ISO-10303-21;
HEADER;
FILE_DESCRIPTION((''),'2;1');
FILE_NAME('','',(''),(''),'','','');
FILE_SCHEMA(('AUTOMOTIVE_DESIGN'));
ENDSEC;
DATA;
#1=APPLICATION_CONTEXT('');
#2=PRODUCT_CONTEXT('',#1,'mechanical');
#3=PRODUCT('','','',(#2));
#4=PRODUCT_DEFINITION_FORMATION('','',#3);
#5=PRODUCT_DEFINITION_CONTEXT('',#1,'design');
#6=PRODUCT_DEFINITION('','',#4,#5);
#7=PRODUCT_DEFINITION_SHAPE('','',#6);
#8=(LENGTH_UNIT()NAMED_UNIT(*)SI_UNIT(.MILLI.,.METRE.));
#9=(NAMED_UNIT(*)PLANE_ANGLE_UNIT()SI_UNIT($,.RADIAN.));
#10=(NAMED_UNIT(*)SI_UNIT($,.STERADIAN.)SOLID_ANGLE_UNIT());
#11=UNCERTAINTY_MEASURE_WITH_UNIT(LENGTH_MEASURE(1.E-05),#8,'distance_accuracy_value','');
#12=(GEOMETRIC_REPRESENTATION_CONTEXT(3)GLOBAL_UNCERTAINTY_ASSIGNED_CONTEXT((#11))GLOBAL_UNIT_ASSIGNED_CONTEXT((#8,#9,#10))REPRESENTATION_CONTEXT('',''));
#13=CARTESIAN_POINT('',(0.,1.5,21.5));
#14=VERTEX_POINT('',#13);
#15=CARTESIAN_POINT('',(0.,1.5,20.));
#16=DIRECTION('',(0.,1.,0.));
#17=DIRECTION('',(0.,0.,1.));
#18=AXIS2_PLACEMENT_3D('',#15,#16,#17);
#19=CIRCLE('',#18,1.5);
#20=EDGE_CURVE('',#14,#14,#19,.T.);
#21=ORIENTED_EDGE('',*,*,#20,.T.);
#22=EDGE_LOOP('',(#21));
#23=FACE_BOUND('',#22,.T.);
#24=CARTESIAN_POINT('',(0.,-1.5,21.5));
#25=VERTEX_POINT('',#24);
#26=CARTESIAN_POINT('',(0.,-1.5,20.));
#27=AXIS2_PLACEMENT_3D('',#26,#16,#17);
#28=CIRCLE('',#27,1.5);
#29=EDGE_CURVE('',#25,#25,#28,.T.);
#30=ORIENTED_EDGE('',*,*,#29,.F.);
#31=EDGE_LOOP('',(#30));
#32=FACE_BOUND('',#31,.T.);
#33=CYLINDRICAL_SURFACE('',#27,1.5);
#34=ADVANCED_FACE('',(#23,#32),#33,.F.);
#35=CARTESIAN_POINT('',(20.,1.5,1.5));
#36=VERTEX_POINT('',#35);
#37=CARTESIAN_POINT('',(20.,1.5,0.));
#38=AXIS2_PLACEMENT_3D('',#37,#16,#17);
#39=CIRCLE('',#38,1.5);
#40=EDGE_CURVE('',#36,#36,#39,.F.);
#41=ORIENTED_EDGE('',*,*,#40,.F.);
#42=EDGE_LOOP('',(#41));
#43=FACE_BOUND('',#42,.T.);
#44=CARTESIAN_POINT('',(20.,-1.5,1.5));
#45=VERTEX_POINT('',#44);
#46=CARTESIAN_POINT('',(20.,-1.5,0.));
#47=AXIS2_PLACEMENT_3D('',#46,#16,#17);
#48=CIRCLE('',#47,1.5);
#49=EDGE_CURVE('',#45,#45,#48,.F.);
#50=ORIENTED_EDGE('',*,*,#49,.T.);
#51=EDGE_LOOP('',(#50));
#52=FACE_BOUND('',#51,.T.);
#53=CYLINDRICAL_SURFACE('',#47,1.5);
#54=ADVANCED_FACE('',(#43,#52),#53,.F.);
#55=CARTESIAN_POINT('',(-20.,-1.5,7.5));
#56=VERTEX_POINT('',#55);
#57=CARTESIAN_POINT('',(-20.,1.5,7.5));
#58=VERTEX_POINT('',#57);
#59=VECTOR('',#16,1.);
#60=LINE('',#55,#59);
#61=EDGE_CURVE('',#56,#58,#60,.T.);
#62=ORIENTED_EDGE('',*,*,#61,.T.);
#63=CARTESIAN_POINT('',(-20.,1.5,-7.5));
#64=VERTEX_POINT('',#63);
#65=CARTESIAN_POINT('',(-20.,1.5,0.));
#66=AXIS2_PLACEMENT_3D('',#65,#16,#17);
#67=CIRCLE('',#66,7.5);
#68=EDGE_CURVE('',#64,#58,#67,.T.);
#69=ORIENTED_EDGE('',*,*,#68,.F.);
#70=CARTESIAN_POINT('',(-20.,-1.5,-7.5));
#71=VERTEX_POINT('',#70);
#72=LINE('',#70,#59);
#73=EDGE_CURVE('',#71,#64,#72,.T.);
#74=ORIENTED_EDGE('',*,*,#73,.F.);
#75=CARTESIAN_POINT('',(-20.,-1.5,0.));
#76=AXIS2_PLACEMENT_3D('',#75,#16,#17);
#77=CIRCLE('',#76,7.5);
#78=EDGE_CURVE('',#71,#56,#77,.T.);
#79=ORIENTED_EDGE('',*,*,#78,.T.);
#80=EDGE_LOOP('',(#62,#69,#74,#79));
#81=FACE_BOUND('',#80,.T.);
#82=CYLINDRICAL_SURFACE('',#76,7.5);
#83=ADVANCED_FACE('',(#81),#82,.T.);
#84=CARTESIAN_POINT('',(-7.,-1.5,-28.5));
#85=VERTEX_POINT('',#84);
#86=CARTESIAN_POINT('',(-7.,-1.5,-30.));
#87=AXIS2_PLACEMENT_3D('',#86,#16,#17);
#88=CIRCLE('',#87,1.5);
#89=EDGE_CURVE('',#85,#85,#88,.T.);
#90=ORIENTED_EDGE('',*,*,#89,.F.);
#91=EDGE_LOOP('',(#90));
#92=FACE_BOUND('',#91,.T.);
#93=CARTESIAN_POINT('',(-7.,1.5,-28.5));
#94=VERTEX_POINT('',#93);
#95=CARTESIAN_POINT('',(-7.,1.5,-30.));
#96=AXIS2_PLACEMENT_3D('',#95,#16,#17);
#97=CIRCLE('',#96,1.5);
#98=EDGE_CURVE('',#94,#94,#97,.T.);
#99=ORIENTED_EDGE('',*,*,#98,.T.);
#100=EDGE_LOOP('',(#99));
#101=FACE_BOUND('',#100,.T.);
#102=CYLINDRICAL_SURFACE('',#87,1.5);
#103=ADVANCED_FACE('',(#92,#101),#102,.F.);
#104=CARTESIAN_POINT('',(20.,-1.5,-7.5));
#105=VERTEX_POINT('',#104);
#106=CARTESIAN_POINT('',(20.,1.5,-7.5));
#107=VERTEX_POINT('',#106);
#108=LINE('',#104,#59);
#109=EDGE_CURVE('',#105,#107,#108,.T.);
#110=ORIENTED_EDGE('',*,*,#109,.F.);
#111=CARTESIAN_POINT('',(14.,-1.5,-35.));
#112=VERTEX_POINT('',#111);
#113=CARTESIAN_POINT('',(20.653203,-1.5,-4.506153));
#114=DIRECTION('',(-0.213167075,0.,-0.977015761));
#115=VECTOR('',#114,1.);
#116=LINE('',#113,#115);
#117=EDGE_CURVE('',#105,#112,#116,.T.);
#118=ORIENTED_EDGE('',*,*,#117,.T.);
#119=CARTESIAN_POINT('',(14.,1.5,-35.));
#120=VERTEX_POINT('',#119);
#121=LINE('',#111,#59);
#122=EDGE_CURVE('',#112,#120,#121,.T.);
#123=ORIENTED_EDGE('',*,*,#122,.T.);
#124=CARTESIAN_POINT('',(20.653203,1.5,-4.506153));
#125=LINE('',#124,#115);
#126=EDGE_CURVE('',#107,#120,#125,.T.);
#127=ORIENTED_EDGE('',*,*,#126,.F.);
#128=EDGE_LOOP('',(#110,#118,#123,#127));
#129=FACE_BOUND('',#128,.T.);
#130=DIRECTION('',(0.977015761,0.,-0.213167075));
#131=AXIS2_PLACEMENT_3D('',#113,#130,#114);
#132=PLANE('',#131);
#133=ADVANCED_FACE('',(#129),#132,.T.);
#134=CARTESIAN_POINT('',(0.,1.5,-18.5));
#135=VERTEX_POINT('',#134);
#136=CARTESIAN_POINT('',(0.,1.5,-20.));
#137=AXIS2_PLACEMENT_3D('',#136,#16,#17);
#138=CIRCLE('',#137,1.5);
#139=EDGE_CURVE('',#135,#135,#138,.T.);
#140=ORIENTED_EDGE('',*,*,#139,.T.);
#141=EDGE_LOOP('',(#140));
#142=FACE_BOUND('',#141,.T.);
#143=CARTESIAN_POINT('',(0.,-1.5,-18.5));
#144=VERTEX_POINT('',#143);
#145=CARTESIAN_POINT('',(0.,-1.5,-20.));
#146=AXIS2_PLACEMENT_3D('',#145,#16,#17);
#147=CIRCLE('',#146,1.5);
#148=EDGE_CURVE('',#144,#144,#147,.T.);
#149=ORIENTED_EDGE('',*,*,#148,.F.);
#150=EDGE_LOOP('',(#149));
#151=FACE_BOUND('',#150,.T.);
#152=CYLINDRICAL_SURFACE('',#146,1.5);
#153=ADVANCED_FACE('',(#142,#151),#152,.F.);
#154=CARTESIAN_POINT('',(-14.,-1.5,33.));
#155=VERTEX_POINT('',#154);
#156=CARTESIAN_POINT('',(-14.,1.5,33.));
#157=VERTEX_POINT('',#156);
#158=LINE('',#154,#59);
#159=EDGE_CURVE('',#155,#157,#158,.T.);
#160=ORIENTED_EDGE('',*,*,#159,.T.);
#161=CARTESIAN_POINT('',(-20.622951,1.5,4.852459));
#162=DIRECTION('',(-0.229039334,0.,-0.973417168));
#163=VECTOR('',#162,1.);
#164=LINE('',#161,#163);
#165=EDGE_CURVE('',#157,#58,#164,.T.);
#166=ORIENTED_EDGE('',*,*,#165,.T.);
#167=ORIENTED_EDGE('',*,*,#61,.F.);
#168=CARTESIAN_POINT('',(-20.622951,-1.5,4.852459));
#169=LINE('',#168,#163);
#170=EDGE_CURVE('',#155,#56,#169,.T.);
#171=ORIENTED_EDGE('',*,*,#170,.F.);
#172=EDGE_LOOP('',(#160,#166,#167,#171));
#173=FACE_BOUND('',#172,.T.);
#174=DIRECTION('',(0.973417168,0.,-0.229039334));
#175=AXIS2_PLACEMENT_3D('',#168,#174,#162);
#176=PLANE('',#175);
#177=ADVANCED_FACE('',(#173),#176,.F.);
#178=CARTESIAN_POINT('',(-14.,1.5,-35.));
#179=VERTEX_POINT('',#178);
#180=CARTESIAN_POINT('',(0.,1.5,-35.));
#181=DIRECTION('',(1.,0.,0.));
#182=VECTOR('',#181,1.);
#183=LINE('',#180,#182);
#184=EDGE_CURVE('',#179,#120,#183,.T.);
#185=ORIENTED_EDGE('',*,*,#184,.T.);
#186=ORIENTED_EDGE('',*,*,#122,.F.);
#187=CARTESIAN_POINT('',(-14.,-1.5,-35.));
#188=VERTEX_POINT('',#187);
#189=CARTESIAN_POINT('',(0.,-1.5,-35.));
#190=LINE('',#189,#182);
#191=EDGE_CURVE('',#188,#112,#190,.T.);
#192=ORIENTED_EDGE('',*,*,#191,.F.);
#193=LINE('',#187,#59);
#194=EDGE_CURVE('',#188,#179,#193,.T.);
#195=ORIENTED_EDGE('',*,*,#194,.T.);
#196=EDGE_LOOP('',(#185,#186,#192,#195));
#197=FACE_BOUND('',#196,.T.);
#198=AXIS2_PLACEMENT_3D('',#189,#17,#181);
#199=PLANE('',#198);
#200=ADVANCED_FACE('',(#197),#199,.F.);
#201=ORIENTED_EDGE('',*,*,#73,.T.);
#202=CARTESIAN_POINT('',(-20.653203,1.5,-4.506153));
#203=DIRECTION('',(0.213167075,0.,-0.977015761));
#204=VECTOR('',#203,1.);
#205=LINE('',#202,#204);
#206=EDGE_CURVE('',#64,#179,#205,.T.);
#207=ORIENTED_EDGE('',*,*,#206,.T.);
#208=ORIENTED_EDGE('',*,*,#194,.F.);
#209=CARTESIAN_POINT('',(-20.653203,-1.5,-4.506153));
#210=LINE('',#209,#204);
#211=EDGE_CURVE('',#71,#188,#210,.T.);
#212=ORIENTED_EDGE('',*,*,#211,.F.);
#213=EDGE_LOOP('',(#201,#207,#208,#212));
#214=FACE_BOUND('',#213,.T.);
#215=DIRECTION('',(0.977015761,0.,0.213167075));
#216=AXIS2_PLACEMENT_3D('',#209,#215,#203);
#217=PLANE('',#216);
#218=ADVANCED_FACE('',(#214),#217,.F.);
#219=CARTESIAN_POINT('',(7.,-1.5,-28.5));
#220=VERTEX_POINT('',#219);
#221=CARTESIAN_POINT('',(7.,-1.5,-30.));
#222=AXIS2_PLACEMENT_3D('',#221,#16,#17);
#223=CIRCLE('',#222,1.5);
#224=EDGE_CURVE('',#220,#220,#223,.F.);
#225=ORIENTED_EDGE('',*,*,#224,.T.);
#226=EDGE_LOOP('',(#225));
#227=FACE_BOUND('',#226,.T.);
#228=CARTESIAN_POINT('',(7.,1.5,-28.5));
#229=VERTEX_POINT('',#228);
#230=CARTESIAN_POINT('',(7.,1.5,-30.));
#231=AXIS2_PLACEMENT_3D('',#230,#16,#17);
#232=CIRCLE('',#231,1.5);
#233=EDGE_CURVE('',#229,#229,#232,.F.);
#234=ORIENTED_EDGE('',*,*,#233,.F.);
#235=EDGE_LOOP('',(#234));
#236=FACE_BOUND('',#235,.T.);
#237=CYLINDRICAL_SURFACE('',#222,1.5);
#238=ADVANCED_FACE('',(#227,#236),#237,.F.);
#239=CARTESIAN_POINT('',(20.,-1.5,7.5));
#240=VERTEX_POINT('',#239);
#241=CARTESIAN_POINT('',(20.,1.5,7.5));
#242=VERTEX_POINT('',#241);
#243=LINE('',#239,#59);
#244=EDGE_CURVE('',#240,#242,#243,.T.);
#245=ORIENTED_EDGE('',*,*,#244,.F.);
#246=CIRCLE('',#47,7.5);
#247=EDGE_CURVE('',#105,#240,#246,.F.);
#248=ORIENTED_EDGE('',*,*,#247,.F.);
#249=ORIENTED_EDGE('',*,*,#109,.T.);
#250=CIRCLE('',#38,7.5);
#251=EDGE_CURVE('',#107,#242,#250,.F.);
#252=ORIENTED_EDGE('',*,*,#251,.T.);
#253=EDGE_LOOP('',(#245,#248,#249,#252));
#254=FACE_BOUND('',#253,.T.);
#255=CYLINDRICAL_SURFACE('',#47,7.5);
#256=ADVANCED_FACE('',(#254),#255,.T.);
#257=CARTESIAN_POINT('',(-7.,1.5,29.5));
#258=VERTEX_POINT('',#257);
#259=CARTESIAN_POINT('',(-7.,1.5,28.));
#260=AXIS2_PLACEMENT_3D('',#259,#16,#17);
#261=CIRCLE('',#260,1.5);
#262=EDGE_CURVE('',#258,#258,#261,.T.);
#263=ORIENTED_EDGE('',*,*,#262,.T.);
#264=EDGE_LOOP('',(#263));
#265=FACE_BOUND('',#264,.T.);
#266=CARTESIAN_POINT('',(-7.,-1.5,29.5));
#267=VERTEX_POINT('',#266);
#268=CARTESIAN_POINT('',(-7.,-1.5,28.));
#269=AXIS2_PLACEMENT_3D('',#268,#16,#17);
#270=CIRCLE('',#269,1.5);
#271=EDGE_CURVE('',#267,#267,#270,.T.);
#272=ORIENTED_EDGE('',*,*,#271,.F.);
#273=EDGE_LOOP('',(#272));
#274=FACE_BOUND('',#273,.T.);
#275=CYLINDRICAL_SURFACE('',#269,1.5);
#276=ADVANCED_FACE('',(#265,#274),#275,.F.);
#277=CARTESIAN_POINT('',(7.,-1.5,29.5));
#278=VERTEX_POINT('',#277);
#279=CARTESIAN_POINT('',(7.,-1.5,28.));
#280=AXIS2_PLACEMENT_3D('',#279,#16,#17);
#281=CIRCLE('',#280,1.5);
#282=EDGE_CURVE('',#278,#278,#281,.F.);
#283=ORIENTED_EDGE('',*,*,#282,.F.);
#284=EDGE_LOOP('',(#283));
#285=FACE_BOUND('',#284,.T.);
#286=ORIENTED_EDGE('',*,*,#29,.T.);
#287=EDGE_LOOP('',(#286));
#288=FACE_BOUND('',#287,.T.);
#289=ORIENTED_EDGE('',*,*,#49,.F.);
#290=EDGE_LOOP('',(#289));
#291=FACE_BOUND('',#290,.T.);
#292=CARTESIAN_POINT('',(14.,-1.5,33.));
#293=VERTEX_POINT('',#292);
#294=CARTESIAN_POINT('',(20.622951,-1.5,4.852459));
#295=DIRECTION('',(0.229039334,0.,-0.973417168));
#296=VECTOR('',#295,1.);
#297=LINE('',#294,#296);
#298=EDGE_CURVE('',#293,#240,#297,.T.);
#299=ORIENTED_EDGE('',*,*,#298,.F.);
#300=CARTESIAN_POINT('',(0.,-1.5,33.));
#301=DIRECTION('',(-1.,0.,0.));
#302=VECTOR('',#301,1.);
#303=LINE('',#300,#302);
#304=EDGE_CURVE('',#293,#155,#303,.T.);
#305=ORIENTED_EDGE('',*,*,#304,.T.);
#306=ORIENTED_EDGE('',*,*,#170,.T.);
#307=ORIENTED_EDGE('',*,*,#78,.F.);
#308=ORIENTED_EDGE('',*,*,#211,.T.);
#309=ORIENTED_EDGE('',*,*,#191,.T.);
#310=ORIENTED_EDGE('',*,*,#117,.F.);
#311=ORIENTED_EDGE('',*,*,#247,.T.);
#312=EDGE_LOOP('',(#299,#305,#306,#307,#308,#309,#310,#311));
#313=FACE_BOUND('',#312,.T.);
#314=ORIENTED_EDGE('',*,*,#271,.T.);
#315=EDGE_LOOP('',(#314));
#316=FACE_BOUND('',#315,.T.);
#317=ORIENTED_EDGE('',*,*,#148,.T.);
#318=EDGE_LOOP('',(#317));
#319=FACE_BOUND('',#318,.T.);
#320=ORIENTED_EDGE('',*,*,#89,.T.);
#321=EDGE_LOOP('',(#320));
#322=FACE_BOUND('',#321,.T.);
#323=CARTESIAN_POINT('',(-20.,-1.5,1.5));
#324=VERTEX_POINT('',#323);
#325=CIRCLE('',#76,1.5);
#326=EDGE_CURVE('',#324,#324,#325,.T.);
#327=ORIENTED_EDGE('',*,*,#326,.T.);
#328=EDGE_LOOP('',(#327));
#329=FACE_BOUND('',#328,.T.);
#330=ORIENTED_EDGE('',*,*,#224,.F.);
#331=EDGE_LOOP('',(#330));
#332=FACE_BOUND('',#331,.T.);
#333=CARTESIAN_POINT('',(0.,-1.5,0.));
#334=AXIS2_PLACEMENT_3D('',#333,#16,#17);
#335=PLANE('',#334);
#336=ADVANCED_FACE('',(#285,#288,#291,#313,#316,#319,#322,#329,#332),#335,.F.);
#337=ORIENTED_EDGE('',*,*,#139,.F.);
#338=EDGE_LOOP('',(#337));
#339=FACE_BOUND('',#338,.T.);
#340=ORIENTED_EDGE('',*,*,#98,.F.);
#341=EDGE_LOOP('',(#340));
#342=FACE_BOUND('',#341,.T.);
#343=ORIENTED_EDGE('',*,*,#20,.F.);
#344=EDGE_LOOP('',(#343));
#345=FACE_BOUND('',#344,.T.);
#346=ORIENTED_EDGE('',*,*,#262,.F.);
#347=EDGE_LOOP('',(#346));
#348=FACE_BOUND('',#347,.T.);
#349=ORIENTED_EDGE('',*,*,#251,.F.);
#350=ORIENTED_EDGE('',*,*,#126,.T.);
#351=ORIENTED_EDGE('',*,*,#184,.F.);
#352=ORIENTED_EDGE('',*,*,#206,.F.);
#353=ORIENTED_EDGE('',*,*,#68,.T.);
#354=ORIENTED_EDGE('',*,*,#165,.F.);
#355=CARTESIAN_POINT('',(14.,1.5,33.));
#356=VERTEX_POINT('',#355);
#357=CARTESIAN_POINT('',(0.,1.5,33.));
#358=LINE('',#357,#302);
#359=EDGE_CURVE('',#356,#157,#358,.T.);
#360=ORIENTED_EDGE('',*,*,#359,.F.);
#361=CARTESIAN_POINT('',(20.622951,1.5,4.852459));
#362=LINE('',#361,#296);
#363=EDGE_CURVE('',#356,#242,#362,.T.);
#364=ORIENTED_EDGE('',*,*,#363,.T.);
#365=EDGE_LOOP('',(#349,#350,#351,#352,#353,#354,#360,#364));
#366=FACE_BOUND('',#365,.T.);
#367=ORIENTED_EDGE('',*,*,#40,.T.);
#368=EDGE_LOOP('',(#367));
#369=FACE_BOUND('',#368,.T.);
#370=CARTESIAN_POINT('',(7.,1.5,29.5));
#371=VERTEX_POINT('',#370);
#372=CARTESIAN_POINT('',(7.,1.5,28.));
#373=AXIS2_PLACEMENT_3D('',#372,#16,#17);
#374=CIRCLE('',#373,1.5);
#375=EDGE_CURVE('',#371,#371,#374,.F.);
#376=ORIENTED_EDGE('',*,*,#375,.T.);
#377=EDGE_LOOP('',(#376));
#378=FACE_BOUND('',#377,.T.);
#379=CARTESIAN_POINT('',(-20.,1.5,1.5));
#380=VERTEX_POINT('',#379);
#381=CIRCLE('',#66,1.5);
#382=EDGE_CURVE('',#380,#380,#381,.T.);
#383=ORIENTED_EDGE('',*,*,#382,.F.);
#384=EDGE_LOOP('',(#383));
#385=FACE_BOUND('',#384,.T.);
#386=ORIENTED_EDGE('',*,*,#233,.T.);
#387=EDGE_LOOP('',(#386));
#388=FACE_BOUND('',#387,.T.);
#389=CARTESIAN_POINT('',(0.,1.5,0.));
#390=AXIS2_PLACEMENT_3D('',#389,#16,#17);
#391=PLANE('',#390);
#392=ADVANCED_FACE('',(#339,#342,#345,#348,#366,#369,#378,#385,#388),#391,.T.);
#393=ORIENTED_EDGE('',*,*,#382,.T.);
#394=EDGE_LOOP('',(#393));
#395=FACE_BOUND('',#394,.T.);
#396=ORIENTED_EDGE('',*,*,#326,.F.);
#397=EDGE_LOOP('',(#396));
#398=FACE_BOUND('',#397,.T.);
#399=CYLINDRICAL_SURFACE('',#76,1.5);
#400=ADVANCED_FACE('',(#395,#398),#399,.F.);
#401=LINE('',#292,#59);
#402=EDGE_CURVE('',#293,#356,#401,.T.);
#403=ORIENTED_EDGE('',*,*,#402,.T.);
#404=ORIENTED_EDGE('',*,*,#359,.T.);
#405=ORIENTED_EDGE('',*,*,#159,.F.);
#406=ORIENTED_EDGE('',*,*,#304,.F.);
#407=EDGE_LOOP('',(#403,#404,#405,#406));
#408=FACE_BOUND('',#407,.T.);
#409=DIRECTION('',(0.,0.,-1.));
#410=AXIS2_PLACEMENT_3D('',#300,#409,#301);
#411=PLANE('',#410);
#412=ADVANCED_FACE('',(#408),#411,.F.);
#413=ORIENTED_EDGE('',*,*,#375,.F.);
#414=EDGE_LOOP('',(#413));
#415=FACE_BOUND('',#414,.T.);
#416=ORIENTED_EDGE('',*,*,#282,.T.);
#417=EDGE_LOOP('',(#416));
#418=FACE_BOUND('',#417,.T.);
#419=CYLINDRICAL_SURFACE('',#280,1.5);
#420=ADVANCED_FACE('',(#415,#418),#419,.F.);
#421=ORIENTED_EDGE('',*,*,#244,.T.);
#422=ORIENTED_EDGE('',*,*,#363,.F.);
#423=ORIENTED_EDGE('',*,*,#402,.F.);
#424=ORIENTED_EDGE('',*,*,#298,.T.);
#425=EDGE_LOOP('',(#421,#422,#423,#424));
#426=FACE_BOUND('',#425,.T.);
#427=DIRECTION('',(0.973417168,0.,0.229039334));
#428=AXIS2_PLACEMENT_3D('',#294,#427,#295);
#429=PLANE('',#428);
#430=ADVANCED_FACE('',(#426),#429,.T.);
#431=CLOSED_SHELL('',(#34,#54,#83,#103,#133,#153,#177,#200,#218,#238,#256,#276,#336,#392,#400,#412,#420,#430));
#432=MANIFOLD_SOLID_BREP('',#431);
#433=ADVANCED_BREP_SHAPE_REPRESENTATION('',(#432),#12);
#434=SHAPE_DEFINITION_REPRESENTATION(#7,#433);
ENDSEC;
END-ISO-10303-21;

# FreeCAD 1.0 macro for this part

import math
import FreeCAD as App
import Part
import Sketcher

doc = App.newDocument("Part")
body = doc.addObject("PartDesign::Body", "Body")

# Sketch on XZ plane
sketch1 = doc.addObject("Sketcher::SketchObject", "Sketch")
body.addObject(sketch1)
sketch1.AttachmentSupport = (doc.XZ_Plane, [""])
sketch1.MapMode = "FlatFace"
sketch1.addGeometry(Part.LineSegment(App.Vector(-14, -35, 0), App.Vector(-20, -7.5, 0)), False)
sketch1.addGeometry(Part.ArcOfCircle(Part.Circle(App.Vector(-20, 0, 0), App.Vector(0, 0, 1), 7.5), math.radians(90), math.radians(270)), False)
sketch1.addGeometry(Part.LineSegment(App.Vector(-20, 7.5, 0), App.Vector(-14, 33, 0)), False)
sketch1.addGeometry(Part.LineSegment(App.Vector(-14, 33, 0), App.Vector(14, 33, 0)), False)
sketch1.addGeometry(Part.LineSegment(App.Vector(14, 33, 0), App.Vector(20, 7.5, 0)), False)
sketch1.addGeometry(Part.ArcOfCircle(Part.Circle(App.Vector(20, 0, 0), App.Vector(0, 0, 1), 7.5), math.radians(-90), math.radians(90)), False)
sketch1.addGeometry(Part.LineSegment(App.Vector(20, -7.5, 0), App.Vector(14, -35, 0)), False)
sketch1.addGeometry(Part.LineSegment(App.Vector(14, -35, 0), App.Vector(-14, -35, 0)), False)
sketch1.addGeometry(Part.Circle(App.Vector(-7, 28, 0), App.Vector(0, 0, 1), 1.5), False)
sketch1.addGeometry(Part.Circle(App.Vector(-20, 0, 0), App.Vector(0, 0, 1), 1.5), False)
sketch1.addGeometry(Part.Circle(App.Vector(7, 28, 0), App.Vector(0, 0, 1), 1.5), False)
sketch1.addGeometry(Part.Circle(App.Vector(0, 20, 0), App.Vector(0, 0, 1), 1.5), False)
sketch1.addGeometry(Part.Circle(App.Vector(20, 0, 0), App.Vector(0, 0, 1), 1.5), False)
sketch1.addGeometry(Part.Circle(App.Vector(-7, -30, 0), App.Vector(0, 0, 1), 1.5), False)
sketch1.addGeometry(Part.Circle(App.Vector(0, -20, 0), App.Vector(0, 0, 1), 1.5), False)
sketch1.addGeometry(Part.Circle(App.Vector(7, -30, 0), App.Vector(0, 0, 1), 1.5), False)
sketch1.addConstraint(Sketcher.Constraint("Coincident", 0, 2, 1, 2))
sketch1.addConstraint(Sketcher.Constraint("Coincident", 1, 1, 2, 1))
sketch1.addConstraint(Sketcher.Constraint("Coincident", 2, 2, 3, 1))
sketch1.addConstraint(Sketcher.Constraint("Coincident", 3, 2, 4, 1))
sketch1.addConstraint(Sketcher.Constraint("Coincident", 4, 2, 5, 2))
sketch1.addConstraint(Sketcher.Constraint("Coincident", 5, 1, 6, 1))
sketch1.addConstraint(Sketcher.Constraint("Coincident", 6, 2, 7, 1))
sketch1.addConstraint(Sketcher.Constraint("Coincident", 7, 2, 0, 1))
sketch1.addConstraint(Sketcher.Constraint("Horizontal", 3))
sketch1.addConstraint(Sketcher.Constraint("Horizontal", 7))
sketch1.addConstraint(Sketcher.Constraint("Coincident", 9, 3, 1, 3))
sketch1.addConstraint(Sketcher.Constraint("Coincident", 12, 3, 5, 3))
sketch1.addConstraint(Sketcher.Constraint("Equal", 1, 5))
sketch1.addConstraint(Sketcher.Constraint("Equal", 8, 9))
sketch1.addConstraint(Sketcher.Constraint("Equal", 9, 10))
sketch1.addConstraint(Sketcher.Constraint("Equal", 10, 11))
sketch1.addConstraint(Sketcher.Constraint("Equal", 11, 12))
sketch1.addConstraint(Sketcher.Constraint("Equal", 12, 13))
sketch1.addConstraint(Sketcher.Constraint("Equal", 13, 14))
sketch1.addConstraint(Sketcher.Constraint("Equal", 14, 15))
sketch1.addConstraint(Sketcher.Constraint("Symmetric", 1, 3, 5, 3, -1, 1))
sketch1.addConstraint(Sketcher.Constraint("Symmetric", 11, 3, 14, 3, -1, 1))
sketch1.addConstraint(Sketcher.Constraint("Symmetric", 8, 3, 10, 3, -2))
sketch1.addConstraint(Sketcher.Constraint("Symmetric", 13, 3, 15, 3, -2))
sketch1.addConstraint(Sketcher.Constraint("Symmetric", 1, 1, 4, 2, -2))
sketch1.addConstraint(Sketcher.Constraint("PointOnObject", 11, 3, -2))
sketch1.addConstraint(Sketcher.Constraint("Vertical", 8, 3, 13, 3))
sketch1.addConstraint(Sketcher.Constraint("Vertical", 9, 3, 0, 2))
sketch1.addConstraint(Sketcher.Constraint("Vertical", 0, 2, 1, 1))
sketch1.addConstraint(Sketcher.Constraint("Vertical", 4, 2, 5, 1))
sketch1.addConstraint(Sketcher.Constraint("Vertical", 3, 2, 6, 2))
sketch1.addConstraint(Sketcher.Constraint("Vertical", 2, 2, 7, 2))
sketch1.addConstraint(Sketcher.Constraint("Equal", 2, 4))
sketch1.addConstraint(Sketcher.Constraint("Diameter", 8, 3.0))
sketch1.addConstraint(Sketcher.Constraint("Radius", 1, 7.5))
sketch1.addConstraint(Sketcher.Constraint("DistanceX", 3, 1, 3, 2, 28.0))
sketch1.addConstraint(Sketcher.Constraint("DistanceX", 1, 3, -1, 1, 20.0))
sketch1.addConstraint(Sketcher.Constraint("DistanceX", 8, 3, -1, 1, 7.0))
sketch1.addConstraint(Sketcher.Constraint("DistanceY", -1, 1, 8, 3, 28.0))
sketch1.addConstraint(Sketcher.Constraint("DistanceY", -1, 1, 11, 3, 20.0))
sketch1.addConstraint(Sketcher.Constraint("DistanceY", 13, 3, -1, 1, 30.0))
sketch1.addConstraint(Sketcher.Constraint("DistanceY", -1, 1, 2, 2, 33.0))
sketch1.addConstraint(Sketcher.Constraint("DistanceY", 6, 2, -1, 1, 35.0))
pad1 = doc.addObject("PartDesign::Pad", "Pad")
body.addObject(pad1)
pad1.Profile = sketch1
pad1.Type = "TwoLengths"
pad1.Length = 1.5
pad1.Length2 = 1.5
pad1.Reversed = True

doc.recompute()
